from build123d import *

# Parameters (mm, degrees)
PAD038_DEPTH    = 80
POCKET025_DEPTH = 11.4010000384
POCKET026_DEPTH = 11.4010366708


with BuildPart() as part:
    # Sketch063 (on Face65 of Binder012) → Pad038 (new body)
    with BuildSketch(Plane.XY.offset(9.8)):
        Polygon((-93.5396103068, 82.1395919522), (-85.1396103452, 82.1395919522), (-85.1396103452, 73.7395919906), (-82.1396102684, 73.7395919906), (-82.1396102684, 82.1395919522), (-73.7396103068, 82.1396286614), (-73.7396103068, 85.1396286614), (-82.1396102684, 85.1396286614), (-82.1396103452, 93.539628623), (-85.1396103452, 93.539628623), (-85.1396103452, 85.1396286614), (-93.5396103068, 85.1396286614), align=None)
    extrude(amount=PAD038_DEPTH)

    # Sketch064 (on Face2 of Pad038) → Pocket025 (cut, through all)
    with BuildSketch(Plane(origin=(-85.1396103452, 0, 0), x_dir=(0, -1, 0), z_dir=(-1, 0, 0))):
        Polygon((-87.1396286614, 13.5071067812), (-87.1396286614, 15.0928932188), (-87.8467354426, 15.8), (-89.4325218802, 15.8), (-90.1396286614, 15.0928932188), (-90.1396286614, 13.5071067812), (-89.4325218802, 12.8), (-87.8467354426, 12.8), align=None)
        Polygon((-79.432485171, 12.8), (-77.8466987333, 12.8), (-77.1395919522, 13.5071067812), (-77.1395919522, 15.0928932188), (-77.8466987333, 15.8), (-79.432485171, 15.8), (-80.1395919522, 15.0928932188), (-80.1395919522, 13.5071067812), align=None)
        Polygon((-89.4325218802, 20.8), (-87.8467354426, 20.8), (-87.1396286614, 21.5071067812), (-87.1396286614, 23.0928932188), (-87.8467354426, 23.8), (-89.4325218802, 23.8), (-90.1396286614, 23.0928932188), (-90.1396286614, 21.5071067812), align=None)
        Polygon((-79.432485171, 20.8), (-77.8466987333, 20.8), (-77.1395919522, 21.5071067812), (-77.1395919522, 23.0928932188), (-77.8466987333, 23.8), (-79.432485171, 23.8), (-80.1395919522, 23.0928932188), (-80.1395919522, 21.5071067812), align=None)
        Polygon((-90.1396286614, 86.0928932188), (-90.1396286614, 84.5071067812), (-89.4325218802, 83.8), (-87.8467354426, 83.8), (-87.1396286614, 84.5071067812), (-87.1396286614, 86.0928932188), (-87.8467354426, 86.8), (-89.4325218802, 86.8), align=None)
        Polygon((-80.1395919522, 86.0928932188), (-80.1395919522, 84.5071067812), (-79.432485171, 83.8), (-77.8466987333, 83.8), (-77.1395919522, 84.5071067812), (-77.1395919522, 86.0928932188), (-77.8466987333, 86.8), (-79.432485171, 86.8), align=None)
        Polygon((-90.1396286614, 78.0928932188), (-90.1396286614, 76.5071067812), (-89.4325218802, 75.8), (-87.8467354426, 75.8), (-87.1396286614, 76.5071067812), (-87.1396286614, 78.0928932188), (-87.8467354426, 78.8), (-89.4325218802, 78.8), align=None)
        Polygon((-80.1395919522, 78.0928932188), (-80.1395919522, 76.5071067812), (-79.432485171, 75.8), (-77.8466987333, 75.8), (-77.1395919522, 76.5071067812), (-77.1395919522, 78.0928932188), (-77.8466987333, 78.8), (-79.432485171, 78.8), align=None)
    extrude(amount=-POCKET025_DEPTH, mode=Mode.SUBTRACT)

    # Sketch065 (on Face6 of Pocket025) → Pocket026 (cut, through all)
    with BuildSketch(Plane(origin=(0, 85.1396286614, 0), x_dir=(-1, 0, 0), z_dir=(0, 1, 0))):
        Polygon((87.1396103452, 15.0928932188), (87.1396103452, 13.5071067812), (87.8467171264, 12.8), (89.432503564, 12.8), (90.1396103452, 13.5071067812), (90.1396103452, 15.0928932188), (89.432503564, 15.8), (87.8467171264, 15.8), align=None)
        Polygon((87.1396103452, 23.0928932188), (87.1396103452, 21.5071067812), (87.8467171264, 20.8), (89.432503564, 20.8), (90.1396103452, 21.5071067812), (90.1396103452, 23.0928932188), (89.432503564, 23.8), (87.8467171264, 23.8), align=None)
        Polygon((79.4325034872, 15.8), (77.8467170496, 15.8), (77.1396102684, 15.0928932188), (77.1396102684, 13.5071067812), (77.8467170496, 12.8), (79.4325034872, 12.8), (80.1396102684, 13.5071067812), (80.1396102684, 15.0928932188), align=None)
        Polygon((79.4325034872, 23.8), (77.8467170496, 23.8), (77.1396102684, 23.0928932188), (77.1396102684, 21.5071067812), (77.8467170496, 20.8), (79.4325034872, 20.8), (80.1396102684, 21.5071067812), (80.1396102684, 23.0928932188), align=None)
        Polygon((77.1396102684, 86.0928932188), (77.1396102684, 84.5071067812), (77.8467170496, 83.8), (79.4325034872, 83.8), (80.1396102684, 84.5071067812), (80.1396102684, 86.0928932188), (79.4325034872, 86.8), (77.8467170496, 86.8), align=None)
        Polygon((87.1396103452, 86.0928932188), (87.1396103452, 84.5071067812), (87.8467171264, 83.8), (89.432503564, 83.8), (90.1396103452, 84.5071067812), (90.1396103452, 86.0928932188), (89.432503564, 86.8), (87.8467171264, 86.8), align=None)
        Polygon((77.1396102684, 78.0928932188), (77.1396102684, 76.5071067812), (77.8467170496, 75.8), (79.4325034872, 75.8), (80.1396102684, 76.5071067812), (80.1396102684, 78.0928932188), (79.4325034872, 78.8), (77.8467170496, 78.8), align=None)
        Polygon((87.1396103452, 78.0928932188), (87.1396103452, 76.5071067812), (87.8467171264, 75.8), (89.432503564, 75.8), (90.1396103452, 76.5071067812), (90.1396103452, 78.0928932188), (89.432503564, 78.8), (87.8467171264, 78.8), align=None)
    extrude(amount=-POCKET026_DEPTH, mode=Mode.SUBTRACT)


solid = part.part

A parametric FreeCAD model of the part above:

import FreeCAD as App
import Part
import Sketcher
from FreeCAD import Vector
Q = App.Units.Quantity

doc = App.newDocument("Part")
params = doc.addObject("Spreadsheet::Sheet", "Params")
for row, (alias, value) in enumerate([
    ("sketch1_width", "3 mm"),
    ("sketch1_width2", "8.4 mm"),
    ("pad1_length", "80 mm"),
    ("sketch2_length", "1 mm"),
    ("sketch3_length", "1 mm"),
], start=1):
    params.set(f"A{row}", alias)
    params.set(f"B{row}", "=" + value)
    params.setAlias(f"B{row}", alias)

body = doc.addObject("PartDesign::Body", "Body")

sketch1 = doc.addObject("Sketcher::SketchObject", "Sketch")
body.addObject(sketch1)
sketch1.AttachmentSupport = (doc.XY_Plane, [""])
sketch1.MapMode = "FlatFace"
sketch1.AttachmentOffset = App.Placement(Vector(0, 0, 9.8), App.Rotation())
sketch1.addGeometry([
    Part.LineSegment(Vector(-93.5, 82.1, 0), Vector(-85.1, 82.1, 0)),
    Part.LineSegment(Vector(-85.1, 82.1, 0), Vector(-85.1, 73.7, 0)),
    Part.LineSegment(Vector(-85.1, 73.7, 0), Vector(-82.1, 73.7, 0)),
    Part.LineSegment(Vector(-82.1, 73.7, 0), Vector(-82.1, 82.1, 0)),
    Part.LineSegment(Vector(-82.1, 82.1, 0), Vector(-73.7, 82.1, 0)),
    Part.LineSegment(Vector(-73.7, 82.1, 0), Vector(-73.7, 85.1, 0)),
    Part.LineSegment(Vector(-73.7, 85.1, 0), Vector(-82.1, 85.1, 0)),
    Part.LineSegment(Vector(-82.1, 85.1, 0), Vector(-82.1, 93.5, 0)),
    Part.LineSegment(Vector(-82.1, 93.5, 0), Vector(-85.1, 93.5, 0)),
    Part.LineSegment(Vector(-85.1, 93.5, 0), Vector(-85.1, 85.1, 0)),
    Part.LineSegment(Vector(-85.1, 85.1, 0), Vector(-93.5, 85.1, 0)),
    Part.LineSegment(Vector(-93.5, 85.1, 0), Vector(-93.5, 82.1, 0)),
], False)
sketch1.addConstraint([
    Sketcher.Constraint("Coincident", 0, 2, 1, 1),
    Sketcher.Constraint("Coincident", 1, 2, 2, 1),
    Sketcher.Constraint("Coincident", 2, 2, 3, 1),
    Sketcher.Constraint("Coincident", 3, 2, 4, 1),
    Sketcher.Constraint("Coincident", 4, 2, 5, 1),
    Sketcher.Constraint("Coincident", 5, 2, 6, 1),
    Sketcher.Constraint("Coincident", 6, 2, 7, 1),
    Sketcher.Constraint("Coincident", 7, 2, 8, 1),
    Sketcher.Constraint("Coincident", 8, 2, 9, 1),
    Sketcher.Constraint("Coincident", 9, 2, 10, 1),
    Sketcher.Constraint("Coincident", 10, 2, 11, 1),
    Sketcher.Constraint("Coincident", 11, 2, 0, 1),
    Sketcher.Constraint("Horizontal", 0),
    Sketcher.Constraint("Vertical", 1),
    Sketcher.Constraint("Horizontal", 2),
    Sketcher.Constraint("Vertical", 3),
    Sketcher.Constraint("Vertical", 5),
    Sketcher.Constraint("Horizontal", 6),
    Sketcher.Constraint("Vertical", 7),
    Sketcher.Constraint("Horizontal", 8),
    Sketcher.Constraint("Vertical", 9),
    Sketcher.Constraint("Horizontal", 10),
    Sketcher.Constraint("Vertical", 11),
    Sketcher.Constraint("Horizontal", 0, 2, 3, 2),
    Sketcher.Constraint("Horizontal", 6, 2, 9, 2),
    Sketcher.Constraint("Vertical", 3, 2, 6, 2),
    Sketcher.Constraint("Vertical", 1, 2, 8, 2),
    Sketcher.Constraint("Equal", 0, 6),
    Sketcher.Constraint("Equal", 10, 1),
    Sketcher.Constraint("Equal", 8, 5),
    Sketcher.Constraint("Equal", 3, 7),
    Sketcher.Constraint("DistanceX", 2, 1, 2, 2, Q("3 mm")),
    Sketcher.Constraint("DistanceX", 0, 1, 0, 2, Q("8.4 mm")),
    Sketcher.Constraint("DistanceY", 11, 2, 11, 1, Q("3.000037 mm")),
    Sketcher.Constraint("DistanceX", 0, 2, -1, 1, Q("85.13961 mm")),
    Sketcher.Constraint("DistanceY", -1, 1, 0, 2, Q("82.139592 mm")),
])
sketch1.setExpression("Constraints[31]", "Params.sketch1_width")
sketch1.setExpression("Constraints[32]", "Params.sketch1_width2")
pad1 = doc.addObject("PartDesign::Pad", "Pad")
body.addObject(pad1)
pad1.Profile = sketch1
pad1.setExpression("Length", "Params.pad1_length")

sketch2 = doc.addObject("Sketcher::SketchObject", "Sketch001")
body.addObject(sketch2)
sketch2.AttachmentSupport = (doc.YZ_Plane, [""])
sketch2.MapMode = "FlatFace"
sketch2.AttachmentOffset = App.Placement(Vector(0, 0, -85.13961), App.Rotation())
sketch2.addGeometry([
    Part.LineSegment(Vector(87.1, 13.5, 0), Vector(87.1, 15.1, 0)),
    Part.LineSegment(Vector(87.1, 15.1, 0), Vector(87.8, 15.8, 0)),
    Part.LineSegment(Vector(87.8, 15.8, 0), Vector(89.4, 15.8, 0)),
    Part.LineSegment(Vector(89.4, 15.8, 0), Vector(90.1, 15.1, 0)),
    Part.LineSegment(Vector(90.1, 15.1, 0), Vector(90.1, 13.5, 0)),
    Part.LineSegment(Vector(90.1, 13.5, 0), Vector(89.4, 12.8, 0)),
    Part.LineSegment(Vector(89.4, 12.8, 0), Vector(87.8, 12.8, 0)),
    Part.LineSegment(Vector(87.8, 12.8, 0), Vector(87.1, 13.5, 0)),
    Part.LineSegment(Vector(79.4, 12.8, 0), Vector(77.8, 12.8, 0)),
    Part.LineSegment(Vector(77.8, 12.8, 0), Vector(77.1, 13.5, 0)),
    Part.LineSegment(Vector(77.1, 13.5, 0), Vector(77.1, 15.1, 0)),
    Part.LineSegment(Vector(77.1, 15.1, 0), Vector(77.8, 15.8, 0)),
    Part.LineSegment(Vector(77.8, 15.8, 0), Vector(79.4, 15.8, 0)),
    Part.LineSegment(Vector(79.4, 15.8, 0), Vector(80.1, 15.1, 0)),
    Part.LineSegment(Vector(80.1, 15.1, 0), Vector(80.1, 13.5, 0)),
    Part.LineSegment(Vector(80.1, 13.5, 0), Vector(79.4, 12.8, 0)),
    Part.LineSegment(Vector(89.4, 20.8, 0), Vector(87.8, 20.8, 0)),
    Part.LineSegment(Vector(87.8, 20.8, 0), Vector(87.1, 21.5, 0)),
    Part.LineSegment(Vector(87.1, 21.5, 0), Vector(87.1, 23.1, 0)),
    Part.LineSegment(Vector(87.1, 23.1, 0), Vector(87.8, 23.8, 0)),
    Part.LineSegment(Vector(87.8, 23.8, 0), Vector(89.4, 23.8, 0)),
    Part.LineSegment(Vector(89.4, 23.8, 0), Vector(90.1, 23.1, 0)),
    Part.LineSegment(Vector(90.1, 23.1, 0), Vector(90.1, 21.5, 0)),
    Part.LineSegment(Vector(90.1, 21.5, 0), Vector(89.4, 20.8, 0)),
    Part.LineSegment(Vector(79.4, 20.8, 0), Vector(77.8, 20.8, 0)),
    Part.LineSegment(Vector(77.8, 20.8, 0), Vector(77.1, 21.5, 0)),
    Part.LineSegment(Vector(77.1, 21.5, 0), Vector(77.1, 23.1, 0)),
    Part.LineSegment(Vector(77.1, 23.1, 0), Vector(77.8, 23.8, 0)),
    Part.LineSegment(Vector(77.8, 23.8, 0), Vector(79.4, 23.8, 0)),
    Part.LineSegment(Vector(79.4, 23.8, 0), Vector(80.1, 23.1, 0)),
    Part.LineSegment(Vector(80.1, 23.1, 0), Vector(80.1, 21.5, 0)),
    Part.LineSegment(Vector(80.1, 21.5, 0), Vector(79.4, 20.8, 0)),
    Part.LineSegment(Vector(90.1, 86.1, 0), Vector(90.1, 84.5, 0)),
    Part.LineSegment(Vector(90.1, 84.5, 0), Vector(89.4, 83.8, 0)),
    Part.LineSegment(Vector(89.4, 83.8, 0), Vector(87.8, 83.8, 0)),
    Part.LineSegment(Vector(87.8, 83.8, 0), Vector(87.1, 84.5, 0)),
    Part.LineSegment(Vector(87.1, 84.5, 0), Vector(87.1, 86.1, 0)),
    Part.LineSegment(Vector(87.1, 86.1, 0), Vector(87.8, 86.8, 0)),
    Part.LineSegment(Vector(87.8, 86.8, 0), Vector(89.4, 86.8, 0)),
    Part.LineSegment(Vector(89.4, 86.8, 0), Vector(90.1, 86.1, 0)),
    Part.LineSegment(Vector(80.1, 86.1, 0), Vector(80.1, 84.5, 0)),
    Part.LineSegment(Vector(80.1, 84.5, 0), Vector(79.4, 83.8, 0)),
    Part.LineSegment(Vector(79.4, 83.8, 0), Vector(77.8, 83.8, 0)),
    Part.LineSegment(Vector(77.8, 83.8, 0), Vector(77.1, 84.5, 0)),
    Part.LineSegment(Vector(77.1, 84.5, 0), Vector(77.1, 86.1, 0)),
    Part.LineSegment(Vector(77.1, 86.1, 0), Vector(77.8, 86.8, 0)),
    Part.LineSegment(Vector(77.8, 86.8, 0), Vector(79.4, 86.8, 0)),
    Part.LineSegment(Vector(79.4, 86.8, 0), Vector(80.1, 86.1, 0)),
    Part.LineSegment(Vector(90.1, 78.1, 0), Vector(90.1, 76.5, 0)),
    Part.LineSegment(Vector(90.1, 76.5, 0), Vector(89.4, 75.8, 0)),
    Part.LineSegment(Vector(89.4, 75.8, 0), Vector(87.8, 75.8, 0)),
    Part.LineSegment(Vector(87.8, 75.8, 0), Vector(87.1, 76.5, 0)),
    Part.LineSegment(Vector(87.1, 76.5, 0), Vector(87.1, 78.1, 0)),
    Part.LineSegment(Vector(87.1, 78.1, 0), Vector(87.8, 78.8, 0)),
    Part.LineSegment(Vector(87.8, 78.8, 0), Vector(89.4, 78.8, 0)),
    Part.LineSegment(Vector(89.4, 78.8, 0), Vector(90.1, 78.1, 0)),
    Part.LineSegment(Vector(80.1, 78.1, 0), Vector(80.1, 76.5, 0)),
    Part.LineSegment(Vector(80.1, 76.5, 0), Vector(79.4, 75.8, 0)),
    Part.LineSegment(Vector(79.4, 75.8, 0), Vector(77.8, 75.8, 0)),
    Part.LineSegment(Vector(77.8, 75.8, 0), Vector(77.1, 76.5, 0)),
    Part.LineSegment(Vector(77.1, 76.5, 0), Vector(77.1, 78.1, 0)),
    Part.LineSegment(Vector(77.1, 78.1, 0), Vector(77.8, 78.8, 0)),
    Part.LineSegment(Vector(77.8, 78.8, 0), Vector(79.4, 78.8, 0)),
    Part.LineSegment(Vector(79.4, 78.8, 0), Vector(80.1, 78.1, 0)),
], False)
sketch2.addConstraint([
    Sketcher.Constraint("Coincident", 0, 2, 1, 1),
    Sketcher.Constraint("Coincident", 1, 2, 2, 1),
    Sketcher.Constraint("Coincident", 2, 2, 3, 1),
    Sketcher.Constraint("Coincident", 3, 2, 4, 1),
    Sketcher.Constraint("Coincident", 4, 2, 5, 1),
    Sketcher.Constraint("Coincident", 5, 2, 6, 1),
    Sketcher.Constraint("Coincident", 6, 2, 7, 1),
    Sketcher.Constraint("Coincident", 7, 2, 0, 1),
    Sketcher.Constraint("Coincident", 8, 2, 9, 1),
    Sketcher.Constraint("Coincident", 9, 2, 10, 1),
    Sketcher.Constraint("Coincident", 10, 2, 11, 1),
    Sketcher.Constraint("Coincident", 11, 2, 12, 1),
    Sketcher.Constraint("Coincident", 12, 2, 13, 1),
    Sketcher.Constraint("Coincident", 13, 2, 14, 1),
    Sketcher.Constraint("Coincident", 14, 2, 15, 1),
    Sketcher.Constraint("Coincident", 15, 2, 8, 1),
    Sketcher.Constraint("Coincident", 16, 2, 17, 1),
    Sketcher.Constraint("Coincident", 17, 2, 18, 1),
    Sketcher.Constraint("Coincident", 18, 2, 19, 1),
    Sketcher.Constraint("Coincident", 19, 2, 20, 1),
    Sketcher.Constraint("Coincident", 20, 2, 21, 1),
    Sketcher.Constraint("Coincident", 21, 2, 22, 1),
    Sketcher.Constraint("Coincident", 22, 2, 23, 1),
    Sketcher.Constraint("Coincident", 23, 2, 16, 1),
    Sketcher.Constraint("Coincident", 24, 2, 25, 1),
    Sketcher.Constraint("Coincident", 25, 2, 26, 1),
    Sketcher.Constraint("Coincident", 26, 2, 27, 1),
    Sketcher.Constraint("Coincident", 27, 2, 28, 1),
    Sketcher.Constraint("Coincident", 28, 2, 29, 1),
    Sketcher.Constraint("Coincident", 29, 2, 30, 1),
    Sketcher.Constraint("Coincident", 30, 2, 31, 1),
    Sketcher.Constraint("Coincident", 31, 2, 24, 1),
    Sketcher.Constraint("Coincident", 32, 2, 33, 1),
    Sketcher.Constraint("Coincident", 33, 2, 34, 1),
    Sketcher.Constraint("Coincident", 34, 2, 35, 1),
    Sketcher.Constraint("Coincident", 35, 2, 36, 1),
    Sketcher.Constraint("Coincident", 36, 2, 37, 1),
    Sketcher.Constraint("Coincident", 37, 2, 38, 1),
    Sketcher.Constraint("Coincident", 38, 2, 39, 1),
    Sketcher.Constraint("Coincident", 39, 2, 32, 1),
    Sketcher.Constraint("Coincident", 40, 2, 41, 1),
    Sketcher.Constraint("Coincident", 41, 2, 42, 1),
    Sketcher.Constraint("Coincident", 42, 2, 43, 1),
    Sketcher.Constraint("Coincident", 43, 2, 44, 1),
    Sketcher.Constraint("Coincident", 44, 2, 45, 1),
    Sketcher.Constraint("Coincident", 45, 2, 46, 1),
    Sketcher.Constraint("Coincident", 46, 2, 47, 1),
    Sketcher.Constraint("Coincident", 47, 2, 40, 1),
    Sketcher.Constraint("Coincident", 48, 2, 49, 1),
    Sketcher.Constraint("Coincident", 49, 2, 50, 1),
    Sketcher.Constraint("Coincident", 50, 2, 51, 1),
    Sketcher.Constraint("Coincident", 51, 2, 52, 1),
    Sketcher.Constraint("Coincident", 52, 2, 53, 1),
    Sketcher.Constraint("Coincident", 53, 2, 54, 1),
    Sketcher.Constraint("Coincident", 54, 2, 55, 1),
    Sketcher.Constraint("Coincident", 55, 2, 48, 1),
    Sketcher.Constraint("Coincident", 56, 2, 57, 1),
    Sketcher.Constraint("Coincident", 57, 2, 58, 1),
    Sketcher.Constraint("Coincident", 58, 2, 59, 1),
    Sketcher.Constraint("Coincident", 59, 2, 60, 1),
    Sketcher.Constraint("Coincident", 60, 2, 61, 1),
    Sketcher.Constraint("Coincident", 61, 2, 62, 1),
    Sketcher.Constraint("Coincident", 62, 2, 63, 1),
    Sketcher.Constraint("Coincident", 63, 2, 56, 1),
    Sketcher.Constraint("Vertical", 0),
    Sketcher.Constraint("Horizontal", 2),
    Sketcher.Constraint("Vertical", 4),
    Sketcher.Constraint("Horizontal", 6),
    Sketcher.Constraint("Horizontal", 8),
    Sketcher.Constraint("Vertical", 10),
    Sketcher.Constraint("Horizontal", 12),
    Sketcher.Constraint("Vertical", 14),
    Sketcher.Constraint("Horizontal", 16),
    Sketcher.Constraint("Vertical", 18),
    Sketcher.Constraint("Horizontal", 20),
    Sketcher.Constraint("Vertical", 22),
    Sketcher.Constraint("Horizontal", 24),
    Sketcher.Constraint("Vertical", 26),
    Sketcher.Constraint("Horizontal", 28),
    Sketcher.Constraint("Vertical", 30),
    Sketcher.Constraint("Vertical", 32),
    Sketcher.Constraint("Horizontal", 34),
    Sketcher.Constraint("Vertical", 36),
    Sketcher.Constraint("Horizontal", 38),
    Sketcher.Constraint("Vertical", 40),
    Sketcher.Constraint("Horizontal", 42),
    Sketcher.Constraint("Vertical", 44),
    Sketcher.Constraint("Horizontal", 46),
    Sketcher.Constraint("Vertical", 48),
    Sketcher.Constraint("Horizontal", 50),
    Sketcher.Constraint("Vertical", 52),
    Sketcher.Constraint("Horizontal", 54),
    Sketcher.Constraint("Vertical", 56),
    Sketcher.Constraint("Horizontal", 58),
    Sketcher.Constraint("Vertical", 60),
    Sketcher.Constraint("Horizontal", 62),
    Sketcher.Constraint("Perpendicular", 1, 3),
    Sketcher.Constraint("Perpendicular", 3, 5),
    Sketcher.Constraint("Perpendicular", 5, 7),
    Sketcher.Constraint("Parallel", 7, 9),
    Sketcher.Constraint("Perpendicular", 9, 11),
    Sketcher.Constraint("Perpendicular", 11, 13),
    Sketcher.Constraint("Perpendicular", 13, 15),
    Sketcher.Constraint("Perpendicular", 15, 17),
    Sketcher.Constraint("Perpendicular", 17, 19),
    Sketcher.Constraint("Perpendicular", 19, 21),
    Sketcher.Constraint("Perpendicular", 21, 23),
    Sketcher.Constraint("Perpendicular", 23, 25),
    Sketcher.Constraint("Perpendicular", 25, 27),
    Sketcher.Constraint("Perpendicular", 27, 29),
    Sketcher.Constraint("Perpendicular", 29, 31),
    Sketcher.Constraint("Parallel", 31, 33),
    Sketcher.Constraint("Perpendicular", 33, 35),
    Sketcher.Constraint("Perpendicular", 35, 37),
    Sketcher.Constraint("Perpendicular", 37, 39),
    Sketcher.Constraint("Perpendicular", 39, 41),
    Sketcher.Constraint("Perpendicular", 41, 43),
    Sketcher.Constraint("Perpendicular", 43, 45),
    Sketcher.Constraint("Perpendicular", 45, 47),
    Sketcher.Constraint("Perpendicular", 47, 49),
    Sketcher.Constraint("Perpendicular", 49, 51),
    Sketcher.Constraint("Perpendicular", 51, 53),
    Sketcher.Constraint("Perpendicular", 53, 55),
    Sketcher.Constraint("Perpendicular", 55, 57),
    Sketcher.Constraint("Perpendicular", 57, 59),
    Sketcher.Constraint("Perpendicular", 59, 61),
    Sketcher.Constraint("Perpendicular", 61, 63),
    Sketcher.Constraint("Horizontal", 0, 2, 3, 2),
    Sketcher.Constraint("Horizontal", 4, 2, 7, 2),
    Sketcher.Constraint("Horizontal", 6, 2, 8, 2),
    Sketcher.Constraint("Horizontal", 7, 2, 9, 2),
    Sketcher.Constraint("Horizontal", 3, 2, 10, 2),
    Sketcher.Constraint("Horizontal", 2, 2, 11, 2),
    Sketcher.Constraint("Horizontal", 10, 2, 13, 2),
    Sketcher.Constraint("Horizontal", 9, 2, 14, 2),
    Sketcher.Constraint("Horizontal", 18, 2, 21, 2),
    Sketcher.Constraint("Horizontal", 17, 2, 22, 2),
    Sketcher.Constraint("Horizontal", 23, 2, 24, 2),
    Sketcher.Constraint("Horizontal", 22, 2, 25, 2),
    Sketcher.Constraint("Horizontal", 21, 2, 26, 2),
    Sketcher.Constraint("Horizontal", 20, 2, 27, 2),
    Sketcher.Constraint("Horizontal", 26, 2, 29, 2),
    Sketcher.Constraint("Horizontal", 25, 2, 30, 2),
    Sketcher.Constraint("Horizontal", 32, 2, 35, 2),
    Sketcher.Constraint("Horizontal", 36, 2, 39, 2),
    Sketcher.Constraint("Horizontal", 35, 2, 40, 2),
    Sketcher.Constraint("Horizontal", 34, 2, 41, 2),
    Sketcher.Constraint("Horizontal", 40, 2, 43, 2),
    Sketcher.Constraint("Horizontal", 39, 2, 44, 2),
    Sketcher.Constraint("Horizontal", 38, 2, 45, 2),
    Sketcher.Constraint("Horizontal", 44, 2, 47, 2),
    Sketcher.Constraint("Horizontal", 48, 2, 51, 2),
    Sketcher.Constraint("Horizontal", 52, 2, 55, 2),
    Sketcher.Constraint("Horizontal", 51, 2, 56, 2),
    Sketcher.Constraint("Horizontal", 50, 2, 57, 2),
    Sketcher.Constraint("Horizontal", 56, 2, 59, 2),
    Sketcher.Constraint("Horizontal", 55, 2, 60, 2),
    Sketcher.Constraint("Horizontal", 54, 2, 61, 2),
    Sketcher.Constraint("Horizontal", 60, 2, 63, 2),
    Sketcher.Constraint("Vertical", 2, 2, 5, 2),
    Sketcher.Constraint("Vertical", 1, 2, 6, 2),
    Sketcher.Constraint("Vertical", 6, 2, 16, 2),
    Sketcher.Constraint("Vertical", 7, 2, 17, 2),
    Sketcher.Constraint("Vertical", 16, 2, 19, 2),
    Sketcher.Constraint("Vertical", 5, 2, 20, 2),
    Sketcher.Constraint("Vertical", 11, 2, 24, 2),
    Sketcher.Constraint("Vertical", 15, 2, 28, 2),
    Sketcher.Constraint("Vertical", 22, 2, 32, 2),
    Sketcher.Constraint("Vertical", 23, 2, 33, 2),
    Sketcher.Constraint("Vertical", 19, 2, 34, 2),
    Sketcher.Constraint("Vertical", 34, 2, 37, 2),
    Sketcher.Constraint("Vertical", 30, 2, 40, 2),
    Sketcher.Constraint("Vertical", 27, 2, 42, 2),
    Sketcher.Constraint("Vertical", 39, 2, 48, 2),
    Sketcher.Constraint("Vertical", 38, 2, 49, 2),
    Sketcher.Constraint("Vertical", 37, 2, 50, 2),
    Sketcher.Constraint("Vertical", 50, 2, 53, 2),
    Sketcher.Constraint("Vertical", 47, 2, 56, 2),
    Sketcher.Constraint("Vertical", 45, 2, 58, 2),
    Sketcher.Constraint("Equal", 6, 8),
    Sketcher.Constraint("Equal", 62, 0),
    Sketcher.Constraint("Equal", 14, 18),
    Sketcher.Constraint("Equal", 30, 32),
    Sketcher.Constraint("Equal", 44, 48),
    Sketcher.Constraint("Distance", 1, Q("1 mm")),
    Sketcher.Constraint("DistanceY", -1, 1, 1, 2, Q("15.8 mm")),
    Sketcher.Constraint("DistanceY", -1, 1, 5, 2, Q("12.8 mm")),
    Sketcher.Constraint("DistanceY", -1, 1, 16, 2, Q("20.8 mm")),
    Sketcher.Constraint("DistanceY", -1, 1, 33, 2, Q("83.8 mm")),
    Sketcher.Constraint("DistanceY", -1, 1, 49, 2, Q("75.8 mm")),
    Sketcher.Constraint("DistanceX", -1, 1, 8, 2, Q("77.846699 mm")),
    Sketcher.Constraint("DistanceX", -1, 1, 0, 2, Q("87.139629 mm")),
])
sketch2.setExpression("Constraints[184]", "Params.sketch2_length")
pocket1 = doc.addObject("PartDesign::Pocket", "Pocket")
body.addObject(pocket1)
pocket1.Profile = sketch2
pocket1.Type = "ThroughAll"
pocket1.Reversed = True

sketch3 = doc.addObject("Sketcher::SketchObject", "Sketch002")
body.addObject(sketch3)
sketch3.AttachmentSupport = (doc.XZ_Plane, [""])
sketch3.MapMode = "FlatFace"
sketch3.AttachmentOffset = App.Placement(Vector(0, 0, -85.139629), App.Rotation())
sketch3.addGeometry([
    Part.LineSegment(Vector(-87.1, 15.1, 0), Vector(-87.1, 13.5, 0)),
    Part.LineSegment(Vector(-87.1, 13.5, 0), Vector(-87.8, 12.8, 0)),
    Part.LineSegment(Vector(-87.8, 12.8, 0), Vector(-89.4, 12.8, 0)),
    Part.LineSegment(Vector(-89.4, 12.8, 0), Vector(-90.1, 13.5, 0)),
    Part.LineSegment(Vector(-90.1, 13.5, 0), Vector(-90.1, 15.1, 0)),
    Part.LineSegment(Vector(-90.1, 15.1, 0), Vector(-89.4, 15.8, 0)),
    Part.LineSegment(Vector(-89.4, 15.8, 0), Vector(-87.8, 15.8, 0)),
    Part.LineSegment(Vector(-87.8, 15.8, 0), Vector(-87.1, 15.1, 0)),
    Part.LineSegment(Vector(-87.1, 23.1, 0), Vector(-87.1, 21.5, 0)),
    Part.LineSegment(Vector(-87.1, 21.5, 0), Vector(-87.8, 20.8, 0)),
    Part.LineSegment(Vector(-87.8, 20.8, 0), Vector(-89.4, 20.8, 0)),
    Part.LineSegment(Vector(-89.4, 20.8, 0), Vector(-90.1, 21.5, 0)),
    Part.LineSegment(Vector(-90.1, 21.5, 0), Vector(-90.1, 23.1, 0)),
    Part.LineSegment(Vector(-90.1, 23.1, 0), Vector(-89.4, 23.8, 0)),
    Part.LineSegment(Vector(-89.4, 23.8, 0), Vector(-87.8, 23.8, 0)),
    Part.LineSegment(Vector(-87.8, 23.8, 0), Vector(-87.1, 23.1, 0)),
    Part.LineSegment(Vector(-79.4, 15.8, 0), Vector(-77.8, 15.8, 0)),
    Part.LineSegment(Vector(-77.8, 15.8, 0), Vector(-77.1, 15.1, 0)),
    Part.LineSegment(Vector(-77.1, 15.1, 0), Vector(-77.1, 13.5, 0)),
    Part.LineSegment(Vector(-77.1, 13.5, 0), Vector(-77.8, 12.8, 0)),
    Part.LineSegment(Vector(-77.8, 12.8, 0), Vector(-79.4, 12.8, 0)),
    Part.LineSegment(Vector(-79.4, 12.8, 0), Vector(-80.1, 13.5, 0)),
    Part.LineSegment(Vector(-80.1, 13.5, 0), Vector(-80.1, 15.1, 0)),
    Part.LineSegment(Vector(-80.1, 15.1, 0), Vector(-79.4, 15.8, 0)),
    Part.LineSegment(Vector(-79.4, 23.8, 0), Vector(-77.8, 23.8, 0)),
    Part.LineSegment(Vector(-77.8, 23.8, 0), Vector(-77.1, 23.1, 0)),
    Part.LineSegment(Vector(-77.1, 23.1, 0), Vector(-77.1, 21.5, 0)),
    Part.LineSegment(Vector(-77.1, 21.5, 0), Vector(-77.8, 20.8, 0)),
    Part.LineSegment(Vector(-77.8, 20.8, 0), Vector(-79.4, 20.8, 0)),
    Part.LineSegment(Vector(-79.4, 20.8, 0), Vector(-80.1, 21.5, 0)),
    Part.LineSegment(Vector(-80.1, 21.5, 0), Vector(-80.1, 23.1, 0)),
    Part.LineSegment(Vector(-80.1, 23.1, 0), Vector(-79.4, 23.8, 0)),
    Part.LineSegment(Vector(-77.1, 86.1, 0), Vector(-77.1, 84.5, 0)),
    Part.LineSegment(Vector(-77.1, 84.5, 0), Vector(-77.8, 83.8, 0)),
    Part.LineSegment(Vector(-77.8, 83.8, 0), Vector(-79.4, 83.8, 0)),
    Part.LineSegment(Vector(-79.4, 83.8, 0), Vector(-80.1, 84.5, 0)),
    Part.LineSegment(Vector(-80.1, 84.5, 0), Vector(-80.1, 86.1, 0)),
    Part.LineSegment(Vector(-80.1, 86.1, 0), Vector(-79.4, 86.8, 0)),
    Part.LineSegment(Vector(-79.4, 86.8, 0), Vector(-77.8, 86.8, 0)),
    Part.LineSegment(Vector(-77.8, 86.8, 0), Vector(-77.1, 86.1, 0)),
    Part.LineSegment(Vector(-87.1, 86.1, 0), Vector(-87.1, 84.5, 0)),
    Part.LineSegment(Vector(-87.1, 84.5, 0), Vector(-87.8, 83.8, 0)),
    Part.LineSegment(Vector(-87.8, 83.8, 0), Vector(-89.4, 83.8, 0)),
    Part.LineSegment(Vector(-89.4, 83.8, 0), Vector(-90.1, 84.5, 0)),
    Part.LineSegment(Vector(-90.1, 84.5, 0), Vector(-90.1, 86.1, 0)),
    Part.LineSegment(Vector(-90.1, 86.1, 0), Vector(-89.4, 86.8, 0)),
    Part.LineSegment(Vector(-89.4, 86.8, 0), Vector(-87.8, 86.8, 0)),
    Part.LineSegment(Vector(-87.8, 86.8, 0), Vector(-87.1, 86.1, 0)),
    Part.LineSegment(Vector(-77.1, 78.1, 0), Vector(-77.1, 76.5, 0)),
    Part.LineSegment(Vector(-77.1, 76.5, 0), Vector(-77.8, 75.8, 0)),
    Part.LineSegment(Vector(-77.8, 75.8, 0), Vector(-79.4, 75.8, 0)),
    Part.LineSegment(Vector(-79.4, 75.8, 0), Vector(-80.1, 76.5, 0)),
    Part.LineSegment(Vector(-80.1, 76.5, 0), Vector(-80.1, 78.1, 0)),
    Part.LineSegment(Vector(-80.1, 78.1, 0), Vector(-79.4, 78.8, 0)),
    Part.LineSegment(Vector(-79.4, 78.8, 0), Vector(-77.8, 78.8, 0)),
    Part.LineSegment(Vector(-77.8, 78.8, 0), Vector(-77.1, 78.1, 0)),
    Part.LineSegment(Vector(-87.1, 78.1, 0), Vector(-87.1, 76.5, 0)),
    Part.LineSegment(Vector(-87.1, 76.5, 0), Vector(-87.8, 75.8, 0)),
    Part.LineSegment(Vector(-87.8, 75.8, 0), Vector(-89.4, 75.8, 0)),
    Part.LineSegment(Vector(-89.4, 75.8, 0), Vector(-90.1, 76.5, 0)),
    Part.LineSegment(Vector(-90.1, 76.5, 0), Vector(-90.1, 78.1, 0)),
    Part.LineSegment(Vector(-90.1, 78.1, 0), Vector(-89.4, 78.8, 0)),
    Part.LineSegment(Vector(-89.4, 78.8, 0), Vector(-87.8, 78.8, 0)),
    Part.LineSegment(Vector(-87.8, 78.8, 0), Vector(-87.1, 78.1, 0)),
], False)
sketch3.addConstraint([
    Sketcher.Constraint("Coincident", 0, 2, 1, 1),
    Sketcher.Constraint("Coincident", 1, 2, 2, 1),
    Sketcher.Constraint("Coincident", 2, 2, 3, 1),
    Sketcher.Constraint("Coincident", 3, 2, 4, 1),
    Sketcher.Constraint("Coincident", 4, 2, 5, 1),
    Sketcher.Constraint("Coincident", 5, 2, 6, 1),
    Sketcher.Constraint("Coincident", 6, 2, 7, 1),
    Sketcher.Constraint("Coincident", 7, 2, 0, 1),
    Sketcher.Constraint("Coincident", 8, 2, 9, 1),
    Sketcher.Constraint("Coincident", 9, 2, 10, 1),
    Sketcher.Constraint("Coincident", 10, 2, 11, 1),
    Sketcher.Constraint("Coincident", 11, 2, 12, 1),
    Sketcher.Constraint("Coincident", 12, 2, 13, 1),
    Sketcher.Constraint("Coincident", 13, 2, 14, 1),
    Sketcher.Constraint("Coincident", 14, 2, 15, 1),
    Sketcher.Constraint("Coincident", 15, 2, 8, 1),
    Sketcher.Constraint("Coincident", 16, 2, 17, 1),
    Sketcher.Constraint("Coincident", 17, 2, 18, 1),
    Sketcher.Constraint("Coincident", 18, 2, 19, 1),
    Sketcher.Constraint("Coincident", 19, 2, 20, 1),
    Sketcher.Constraint("Coincident", 20, 2, 21, 1),
    Sketcher.Constraint("Coincident", 21, 2, 22, 1),
    Sketcher.Constraint("Coincident", 22, 2, 23, 1),
    Sketcher.Constraint("Coincident", 23, 2, 16, 1),
    Sketcher.Constraint("Coincident", 24, 2, 25, 1),
    Sketcher.Constraint("Coincident", 25, 2, 26, 1),
    Sketcher.Constraint("Coincident", 26, 2, 27, 1),
    Sketcher.Constraint("Coincident", 27, 2, 28, 1),
    Sketcher.Constraint("Coincident", 28, 2, 29, 1),
    Sketcher.Constraint("Coincident", 29, 2, 30, 1),
    Sketcher.Constraint("Coincident", 30, 2, 31, 1),
    Sketcher.Constraint("Coincident", 31, 2, 24, 1),
    Sketcher.Constraint("Coincident", 32, 2, 33, 1),
    Sketcher.Constraint("Coincident", 33, 2, 34, 1),
    Sketcher.Constraint("Coincident", 34, 2, 35, 1),
    Sketcher.Constraint("Coincident", 35, 2, 36, 1),
    Sketcher.Constraint("Coincident", 36, 2, 37, 1),
    Sketcher.Constraint("Coincident", 37, 2, 38, 1),
    Sketcher.Constraint("Coincident", 38, 2, 39, 1),
    Sketcher.Constraint("Coincident", 39, 2, 32, 1),
    Sketcher.Constraint("Coincident", 40, 2, 41, 1),
    Sketcher.Constraint("Coincident", 41, 2, 42, 1),
    Sketcher.Constraint("Coincident", 42, 2, 43, 1),
    Sketcher.Constraint("Coincident", 43, 2, 44, 1),
    Sketcher.Constraint("Coincident", 44, 2, 45, 1),
    Sketcher.Constraint("Coincident", 45, 2, 46, 1),
    Sketcher.Constraint("Coincident", 46, 2, 47, 1),
    Sketcher.Constraint("Coincident", 47, 2, 40, 1),
    Sketcher.Constraint("Coincident", 48, 2, 49, 1),
    Sketcher.Constraint("Coincident", 49, 2, 50, 1),
    Sketcher.Constraint("Coincident", 50, 2, 51, 1),
    Sketcher.Constraint("Coincident", 51, 2, 52, 1),
    Sketcher.Constraint("Coincident", 52, 2, 53, 1),
    Sketcher.Constraint("Coincident", 53, 2, 54, 1),
    Sketcher.Constraint("Coincident", 54, 2, 55, 1),
    Sketcher.Constraint("Coincident", 55, 2, 48, 1),
    Sketcher.Constraint("Coincident", 56, 2, 57, 1),
    Sketcher.Constraint("Coincident", 57, 2, 58, 1),
    Sketcher.Constraint("Coincident", 58, 2, 59, 1),
    Sketcher.Constraint("Coincident", 59, 2, 60, 1),
    Sketcher.Constraint("Coincident", 60, 2, 61, 1),
    Sketcher.Constraint("Coincident", 61, 2, 62, 1),
    Sketcher.Constraint("Coincident", 62, 2, 63, 1),
    Sketcher.Constraint("Coincident", 63, 2, 56, 1),
    Sketcher.Constraint("Vertical", 0),
    Sketcher.Constraint("Horizontal", 2),
    Sketcher.Constraint("Vertical", 4),
    Sketcher.Constraint("Horizontal", 6),
    Sketcher.Constraint("Vertical", 8),
    Sketcher.Constraint("Horizontal", 10),
    Sketcher.Constraint("Vertical", 12),
    Sketcher.Constraint("Horizontal", 14),
    Sketcher.Constraint("Horizontal", 16),
    Sketcher.Constraint("Vertical", 18),
    Sketcher.Constraint("Horizontal", 20),
    Sketcher.Constraint("Vertical", 22),
    Sketcher.Constraint("Horizontal", 24),
    Sketcher.Constraint("Vertical", 26),
    Sketcher.Constraint("Horizontal", 28),
    Sketcher.Constraint("Vertical", 30),
    Sketcher.Constraint("Vertical", 32),
    Sketcher.Constraint("Horizontal", 34),
    Sketcher.Constraint("Vertical", 36),
    Sketcher.Constraint("Horizontal", 38),
    Sketcher.Constraint("Vertical", 40),
    Sketcher.Constraint("Horizontal", 42),
    Sketcher.Constraint("Vertical", 44),
    Sketcher.Constraint("Horizontal", 46),
    Sketcher.Constraint("Vertical", 48),
    Sketcher.Constraint("Horizontal", 50),
    Sketcher.Constraint("Vertical", 52),
    Sketcher.Constraint("Horizontal", 54),
    Sketcher.Constraint("Vertical", 56),
    Sketcher.Constraint("Horizontal", 58),
    Sketcher.Constraint("Vertical", 60),
    Sketcher.Constraint("Horizontal", 62),
    Sketcher.Constraint("Perpendicular", 1, 3),
    Sketcher.Constraint("Perpendicular", 3, 5),
    Sketcher.Constraint("Perpendicular", 5, 7),
    Sketcher.Constraint("Perpendicular", 7, 9),
    Sketcher.Constraint("Perpendicular", 9, 11),
    Sketcher.Constraint("Perpendicular", 11, 13),
    Sketcher.Constraint("Perpendicular", 13, 15),
    Sketcher.Constraint("Parallel", 15, 17),
    Sketcher.Constraint("Perpendicular", 17, 19),
    Sketcher.Constraint("Perpendicular", 19, 21),
    Sketcher.Constraint("Perpendicular", 21, 23),
    Sketcher.Constraint("Perpendicular", 23, 25),
    Sketcher.Constraint("Perpendicular", 25, 27),
    Sketcher.Constraint("Perpendicular", 27, 29),
    Sketcher.Constraint("Perpendicular", 29, 31),
    Sketcher.Constraint("Parallel", 31, 33),
    Sketcher.Constraint("Perpendicular", 33, 35),
    Sketcher.Constraint("Perpendicular", 35, 37),
    Sketcher.Constraint("Perpendicular", 37, 39),
    Sketcher.Constraint("Perpendicular", 39, 41),
    Sketcher.Constraint("Perpendicular", 41, 43),
    Sketcher.Constraint("Perpendicular", 43, 45),
    Sketcher.Constraint("Perpendicular", 45, 47),
    Sketcher.Constraint("Perpendicular", 47, 49),
    Sketcher.Constraint("Perpendicular", 49, 51),
    Sketcher.Constraint("Perpendicular", 51, 53),
    Sketcher.Constraint("Perpendicular", 53, 55),
    Sketcher.Constraint("Perpendicular", 55, 57),
    Sketcher.Constraint("Perpendicular", 57, 59),
    Sketcher.Constraint("Perpendicular", 59, 61),
    Sketcher.Constraint("Perpendicular", 61, 63),
    Sketcher.Constraint("Horizontal", 0, 2, 3, 2),
    Sketcher.Constraint("Horizontal", 4, 2, 7, 2),
    Sketcher.Constraint("Horizontal", 8, 2, 11, 2),
    Sketcher.Constraint("Horizontal", 12, 2, 15, 2),
    Sketcher.Constraint("Horizontal", 6, 2, 16, 2),
    Sketcher.Constraint("Horizontal", 7, 2, 17, 2),
    Sketcher.Constraint("Horizontal", 3, 2, 18, 2),
    Sketcher.Constraint("Horizontal", 2, 2, 19, 2),
    Sketcher.Constraint("Horizontal", 18, 2, 21, 2),
    Sketcher.Constraint("Horizontal", 17, 2, 22, 2),
    Sketcher.Constraint("Horizontal", 14, 2, 24, 2),
    Sketcher.Constraint("Horizontal", 15, 2, 25, 2),
    Sketcher.Constraint("Horizontal", 11, 2, 26, 2),
    Sketcher.Constraint("Horizontal", 10, 2, 27, 2),
    Sketcher.Constraint("Horizontal", 26, 2, 29, 2),
    Sketcher.Constraint("Horizontal", 25, 2, 30, 2),
    Sketcher.Constraint("Horizontal", 32, 2, 35, 2),
    Sketcher.Constraint("Horizontal", 36, 2, 39, 2),
    Sketcher.Constraint("Horizontal", 35, 2, 40, 2),
    Sketcher.Constraint("Horizontal", 34, 2, 41, 2),
    Sketcher.Constraint("Horizontal", 40, 2, 43, 2),
    Sketcher.Constraint("Horizontal", 39, 2, 44, 2),
    Sketcher.Constraint("Horizontal", 38, 2, 45, 2),
    Sketcher.Constraint("Horizontal", 44, 2, 47, 2),
    Sketcher.Constraint("Horizontal", 48, 2, 51, 2),
    Sketcher.Constraint("Horizontal", 52, 2, 55, 2),
    Sketcher.Constraint("Horizontal", 51, 2, 56, 2),
    Sketcher.Constraint("Horizontal", 50, 2, 57, 2),
    Sketcher.Constraint("Horizontal", 56, 2, 59, 2),
    Sketcher.Constraint("Horizontal", 55, 2, 60, 2),
    Sketcher.Constraint("Horizontal", 54, 2, 61, 2),
    Sketcher.Constraint("Horizontal", 60, 2, 63, 2),
    Sketcher.Constraint("Vertical", 2, 2, 5, 2),
    Sketcher.Constraint("Vertical", 1, 2, 6, 2),
    Sketcher.Constraint("Vertical", 7, 2, 8, 2),
    Sketcher.Constraint("Vertical", 6, 2, 9, 2),
    Sketcher.Constraint("Vertical", 5, 2, 10, 2),
    Sketcher.Constraint("Vertical", 10, 2, 13, 2),
    Sketcher.Constraint("Vertical", 19, 2, 24, 2),
    Sketcher.Constraint("Vertical", 23, 2, 28, 2),
    Sketcher.Constraint("Vertical", 26, 2, 32, 2),
    Sketcher.Constraint("Vertical", 27, 2, 33, 2),
    Sketcher.Constraint("Vertical", 31, 2, 34, 2),
    Sketcher.Constraint("Vertical", 34, 2, 37, 2),
    Sketcher.Constraint("Vertical", 15, 2, 40, 2),
    Sketcher.Constraint("Vertical", 13, 2, 42, 2),
    Sketcher.Constraint("Vertical", 39, 2, 48, 2),
    Sketcher.Constraint("Vertical", 38, 2, 49, 2),
    Sketcher.Constraint("Vertical", 37, 2, 50, 2),
    Sketcher.Constraint("Vertical", 50, 2, 53, 2),
    Sketcher.Constraint("Vertical", 47, 2, 56, 2),
    Sketcher.Constraint("Vertical", 45, 2, 58, 2),
    Sketcher.Constraint("Equal", 14, 16),
    Sketcher.Constraint("Equal", 62, 0),
    Sketcher.Constraint("Equal", 4, 8),
    Sketcher.Constraint("Equal", 30, 32),
    Sketcher.Constraint("Equal", 44, 48),
    Sketcher.Constraint("Distance", 1, Q("1 mm")),
    Sketcher.Constraint("DistanceY", -1, 1, 1, 2, Q("12.8 mm")),
    Sketcher.Constraint("DistanceY", -1, 1, 5, 2, Q("15.8 mm")),
    Sketcher.Constraint("DistanceY", -1, 1, 9, 2, Q("20.8 mm")),
    Sketcher.Constraint("DistanceY", -1, 1, 33, 2, Q("83.8 mm")),
    Sketcher.Constraint("DistanceY", -1, 1, 49, 2, Q("75.8 mm")),
    Sketcher.Constraint("DistanceX", 0, 2, -1, 1, Q("87.13961 mm")),
    Sketcher.Constraint("DistanceX", 17, 2, -1, 1, Q("77.13961 mm")),
])
sketch3.setExpression("Constraints[184]", "Params.sketch3_length")
pocket2 = doc.addObject("PartDesign::Pocket", "Pocket001")
body.addObject(pocket2)
pocket2.Profile = sketch3
pocket2.Type = "ThroughAll"
pocket2.Reversed = True

doc.recompute()
